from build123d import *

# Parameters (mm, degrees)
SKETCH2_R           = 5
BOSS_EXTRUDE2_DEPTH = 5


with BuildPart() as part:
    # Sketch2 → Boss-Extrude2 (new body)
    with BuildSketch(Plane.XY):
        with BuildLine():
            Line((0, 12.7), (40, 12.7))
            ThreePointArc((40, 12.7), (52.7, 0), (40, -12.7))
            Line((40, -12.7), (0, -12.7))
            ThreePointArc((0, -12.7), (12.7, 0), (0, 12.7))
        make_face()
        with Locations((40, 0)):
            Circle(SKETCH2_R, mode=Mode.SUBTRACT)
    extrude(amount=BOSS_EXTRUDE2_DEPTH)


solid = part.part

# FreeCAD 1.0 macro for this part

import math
import FreeCAD as App
import Part
import Sketcher
from FreeCAD import Vector

doc = App.newDocument("Part")
body = doc.addObject("PartDesign::Body", "Body")

sketch1 = body.newObject("Sketcher::SketchObject", "Sketch")
sketch1.AttachmentSupport = (doc.getObject("XY_Plane"), [""])
sketch1.MapMode = "FlatFace"
sketch1.addGeometry([
    Part.LineSegment(Vector(40, 13, 0), Vector(0, 13, 0)),
    Part.ArcOfCircle(Part.Circle(Vector(0, 0, 0), Vector(0, 0, 1), 13), math.radians(-90), math.radians(90)),
    Part.LineSegment(Vector(0, -13, 0), Vector(40, -13, 0)),
    Part.ArcOfCircle(Part.Circle(Vector(40, 0, 0), Vector(0, 0, 1), 13), math.radians(-90), math.radians(90)),
    Part.Circle(Vector(40, 0, 0), Vector(0, 0, 1), 5),
], False)
sketch1.addConstraint([
    Sketcher.Constraint("Tangent", 0, 2, 1, 2),
    Sketcher.Constraint("Tangent", 1, 1, 2, 1),
    Sketcher.Constraint("Tangent", 2, 2, 3, 1),
    Sketcher.Constraint("Tangent", 3, 2, 0, 1),
    Sketcher.Constraint("Horizontal", 0),
    Sketcher.Constraint("Horizontal", 2),
    Sketcher.Constraint("Coincident", 1, 3, -1, 1),
    Sketcher.Constraint("Coincident", 4, 3, 3, 3),
    Sketcher.Constraint("Diameter", 4, 10.0),
    Sketcher.Constraint("Radius", 1, 12.7),
    Sketcher.Constraint("DistanceX", 0, 2, 0, 1, 40.0),
])
pad1 = body.newObject("PartDesign::Pad", "Pad")
pad1.Profile = sketch1
pad1.Length = 5

doc.recompute()
